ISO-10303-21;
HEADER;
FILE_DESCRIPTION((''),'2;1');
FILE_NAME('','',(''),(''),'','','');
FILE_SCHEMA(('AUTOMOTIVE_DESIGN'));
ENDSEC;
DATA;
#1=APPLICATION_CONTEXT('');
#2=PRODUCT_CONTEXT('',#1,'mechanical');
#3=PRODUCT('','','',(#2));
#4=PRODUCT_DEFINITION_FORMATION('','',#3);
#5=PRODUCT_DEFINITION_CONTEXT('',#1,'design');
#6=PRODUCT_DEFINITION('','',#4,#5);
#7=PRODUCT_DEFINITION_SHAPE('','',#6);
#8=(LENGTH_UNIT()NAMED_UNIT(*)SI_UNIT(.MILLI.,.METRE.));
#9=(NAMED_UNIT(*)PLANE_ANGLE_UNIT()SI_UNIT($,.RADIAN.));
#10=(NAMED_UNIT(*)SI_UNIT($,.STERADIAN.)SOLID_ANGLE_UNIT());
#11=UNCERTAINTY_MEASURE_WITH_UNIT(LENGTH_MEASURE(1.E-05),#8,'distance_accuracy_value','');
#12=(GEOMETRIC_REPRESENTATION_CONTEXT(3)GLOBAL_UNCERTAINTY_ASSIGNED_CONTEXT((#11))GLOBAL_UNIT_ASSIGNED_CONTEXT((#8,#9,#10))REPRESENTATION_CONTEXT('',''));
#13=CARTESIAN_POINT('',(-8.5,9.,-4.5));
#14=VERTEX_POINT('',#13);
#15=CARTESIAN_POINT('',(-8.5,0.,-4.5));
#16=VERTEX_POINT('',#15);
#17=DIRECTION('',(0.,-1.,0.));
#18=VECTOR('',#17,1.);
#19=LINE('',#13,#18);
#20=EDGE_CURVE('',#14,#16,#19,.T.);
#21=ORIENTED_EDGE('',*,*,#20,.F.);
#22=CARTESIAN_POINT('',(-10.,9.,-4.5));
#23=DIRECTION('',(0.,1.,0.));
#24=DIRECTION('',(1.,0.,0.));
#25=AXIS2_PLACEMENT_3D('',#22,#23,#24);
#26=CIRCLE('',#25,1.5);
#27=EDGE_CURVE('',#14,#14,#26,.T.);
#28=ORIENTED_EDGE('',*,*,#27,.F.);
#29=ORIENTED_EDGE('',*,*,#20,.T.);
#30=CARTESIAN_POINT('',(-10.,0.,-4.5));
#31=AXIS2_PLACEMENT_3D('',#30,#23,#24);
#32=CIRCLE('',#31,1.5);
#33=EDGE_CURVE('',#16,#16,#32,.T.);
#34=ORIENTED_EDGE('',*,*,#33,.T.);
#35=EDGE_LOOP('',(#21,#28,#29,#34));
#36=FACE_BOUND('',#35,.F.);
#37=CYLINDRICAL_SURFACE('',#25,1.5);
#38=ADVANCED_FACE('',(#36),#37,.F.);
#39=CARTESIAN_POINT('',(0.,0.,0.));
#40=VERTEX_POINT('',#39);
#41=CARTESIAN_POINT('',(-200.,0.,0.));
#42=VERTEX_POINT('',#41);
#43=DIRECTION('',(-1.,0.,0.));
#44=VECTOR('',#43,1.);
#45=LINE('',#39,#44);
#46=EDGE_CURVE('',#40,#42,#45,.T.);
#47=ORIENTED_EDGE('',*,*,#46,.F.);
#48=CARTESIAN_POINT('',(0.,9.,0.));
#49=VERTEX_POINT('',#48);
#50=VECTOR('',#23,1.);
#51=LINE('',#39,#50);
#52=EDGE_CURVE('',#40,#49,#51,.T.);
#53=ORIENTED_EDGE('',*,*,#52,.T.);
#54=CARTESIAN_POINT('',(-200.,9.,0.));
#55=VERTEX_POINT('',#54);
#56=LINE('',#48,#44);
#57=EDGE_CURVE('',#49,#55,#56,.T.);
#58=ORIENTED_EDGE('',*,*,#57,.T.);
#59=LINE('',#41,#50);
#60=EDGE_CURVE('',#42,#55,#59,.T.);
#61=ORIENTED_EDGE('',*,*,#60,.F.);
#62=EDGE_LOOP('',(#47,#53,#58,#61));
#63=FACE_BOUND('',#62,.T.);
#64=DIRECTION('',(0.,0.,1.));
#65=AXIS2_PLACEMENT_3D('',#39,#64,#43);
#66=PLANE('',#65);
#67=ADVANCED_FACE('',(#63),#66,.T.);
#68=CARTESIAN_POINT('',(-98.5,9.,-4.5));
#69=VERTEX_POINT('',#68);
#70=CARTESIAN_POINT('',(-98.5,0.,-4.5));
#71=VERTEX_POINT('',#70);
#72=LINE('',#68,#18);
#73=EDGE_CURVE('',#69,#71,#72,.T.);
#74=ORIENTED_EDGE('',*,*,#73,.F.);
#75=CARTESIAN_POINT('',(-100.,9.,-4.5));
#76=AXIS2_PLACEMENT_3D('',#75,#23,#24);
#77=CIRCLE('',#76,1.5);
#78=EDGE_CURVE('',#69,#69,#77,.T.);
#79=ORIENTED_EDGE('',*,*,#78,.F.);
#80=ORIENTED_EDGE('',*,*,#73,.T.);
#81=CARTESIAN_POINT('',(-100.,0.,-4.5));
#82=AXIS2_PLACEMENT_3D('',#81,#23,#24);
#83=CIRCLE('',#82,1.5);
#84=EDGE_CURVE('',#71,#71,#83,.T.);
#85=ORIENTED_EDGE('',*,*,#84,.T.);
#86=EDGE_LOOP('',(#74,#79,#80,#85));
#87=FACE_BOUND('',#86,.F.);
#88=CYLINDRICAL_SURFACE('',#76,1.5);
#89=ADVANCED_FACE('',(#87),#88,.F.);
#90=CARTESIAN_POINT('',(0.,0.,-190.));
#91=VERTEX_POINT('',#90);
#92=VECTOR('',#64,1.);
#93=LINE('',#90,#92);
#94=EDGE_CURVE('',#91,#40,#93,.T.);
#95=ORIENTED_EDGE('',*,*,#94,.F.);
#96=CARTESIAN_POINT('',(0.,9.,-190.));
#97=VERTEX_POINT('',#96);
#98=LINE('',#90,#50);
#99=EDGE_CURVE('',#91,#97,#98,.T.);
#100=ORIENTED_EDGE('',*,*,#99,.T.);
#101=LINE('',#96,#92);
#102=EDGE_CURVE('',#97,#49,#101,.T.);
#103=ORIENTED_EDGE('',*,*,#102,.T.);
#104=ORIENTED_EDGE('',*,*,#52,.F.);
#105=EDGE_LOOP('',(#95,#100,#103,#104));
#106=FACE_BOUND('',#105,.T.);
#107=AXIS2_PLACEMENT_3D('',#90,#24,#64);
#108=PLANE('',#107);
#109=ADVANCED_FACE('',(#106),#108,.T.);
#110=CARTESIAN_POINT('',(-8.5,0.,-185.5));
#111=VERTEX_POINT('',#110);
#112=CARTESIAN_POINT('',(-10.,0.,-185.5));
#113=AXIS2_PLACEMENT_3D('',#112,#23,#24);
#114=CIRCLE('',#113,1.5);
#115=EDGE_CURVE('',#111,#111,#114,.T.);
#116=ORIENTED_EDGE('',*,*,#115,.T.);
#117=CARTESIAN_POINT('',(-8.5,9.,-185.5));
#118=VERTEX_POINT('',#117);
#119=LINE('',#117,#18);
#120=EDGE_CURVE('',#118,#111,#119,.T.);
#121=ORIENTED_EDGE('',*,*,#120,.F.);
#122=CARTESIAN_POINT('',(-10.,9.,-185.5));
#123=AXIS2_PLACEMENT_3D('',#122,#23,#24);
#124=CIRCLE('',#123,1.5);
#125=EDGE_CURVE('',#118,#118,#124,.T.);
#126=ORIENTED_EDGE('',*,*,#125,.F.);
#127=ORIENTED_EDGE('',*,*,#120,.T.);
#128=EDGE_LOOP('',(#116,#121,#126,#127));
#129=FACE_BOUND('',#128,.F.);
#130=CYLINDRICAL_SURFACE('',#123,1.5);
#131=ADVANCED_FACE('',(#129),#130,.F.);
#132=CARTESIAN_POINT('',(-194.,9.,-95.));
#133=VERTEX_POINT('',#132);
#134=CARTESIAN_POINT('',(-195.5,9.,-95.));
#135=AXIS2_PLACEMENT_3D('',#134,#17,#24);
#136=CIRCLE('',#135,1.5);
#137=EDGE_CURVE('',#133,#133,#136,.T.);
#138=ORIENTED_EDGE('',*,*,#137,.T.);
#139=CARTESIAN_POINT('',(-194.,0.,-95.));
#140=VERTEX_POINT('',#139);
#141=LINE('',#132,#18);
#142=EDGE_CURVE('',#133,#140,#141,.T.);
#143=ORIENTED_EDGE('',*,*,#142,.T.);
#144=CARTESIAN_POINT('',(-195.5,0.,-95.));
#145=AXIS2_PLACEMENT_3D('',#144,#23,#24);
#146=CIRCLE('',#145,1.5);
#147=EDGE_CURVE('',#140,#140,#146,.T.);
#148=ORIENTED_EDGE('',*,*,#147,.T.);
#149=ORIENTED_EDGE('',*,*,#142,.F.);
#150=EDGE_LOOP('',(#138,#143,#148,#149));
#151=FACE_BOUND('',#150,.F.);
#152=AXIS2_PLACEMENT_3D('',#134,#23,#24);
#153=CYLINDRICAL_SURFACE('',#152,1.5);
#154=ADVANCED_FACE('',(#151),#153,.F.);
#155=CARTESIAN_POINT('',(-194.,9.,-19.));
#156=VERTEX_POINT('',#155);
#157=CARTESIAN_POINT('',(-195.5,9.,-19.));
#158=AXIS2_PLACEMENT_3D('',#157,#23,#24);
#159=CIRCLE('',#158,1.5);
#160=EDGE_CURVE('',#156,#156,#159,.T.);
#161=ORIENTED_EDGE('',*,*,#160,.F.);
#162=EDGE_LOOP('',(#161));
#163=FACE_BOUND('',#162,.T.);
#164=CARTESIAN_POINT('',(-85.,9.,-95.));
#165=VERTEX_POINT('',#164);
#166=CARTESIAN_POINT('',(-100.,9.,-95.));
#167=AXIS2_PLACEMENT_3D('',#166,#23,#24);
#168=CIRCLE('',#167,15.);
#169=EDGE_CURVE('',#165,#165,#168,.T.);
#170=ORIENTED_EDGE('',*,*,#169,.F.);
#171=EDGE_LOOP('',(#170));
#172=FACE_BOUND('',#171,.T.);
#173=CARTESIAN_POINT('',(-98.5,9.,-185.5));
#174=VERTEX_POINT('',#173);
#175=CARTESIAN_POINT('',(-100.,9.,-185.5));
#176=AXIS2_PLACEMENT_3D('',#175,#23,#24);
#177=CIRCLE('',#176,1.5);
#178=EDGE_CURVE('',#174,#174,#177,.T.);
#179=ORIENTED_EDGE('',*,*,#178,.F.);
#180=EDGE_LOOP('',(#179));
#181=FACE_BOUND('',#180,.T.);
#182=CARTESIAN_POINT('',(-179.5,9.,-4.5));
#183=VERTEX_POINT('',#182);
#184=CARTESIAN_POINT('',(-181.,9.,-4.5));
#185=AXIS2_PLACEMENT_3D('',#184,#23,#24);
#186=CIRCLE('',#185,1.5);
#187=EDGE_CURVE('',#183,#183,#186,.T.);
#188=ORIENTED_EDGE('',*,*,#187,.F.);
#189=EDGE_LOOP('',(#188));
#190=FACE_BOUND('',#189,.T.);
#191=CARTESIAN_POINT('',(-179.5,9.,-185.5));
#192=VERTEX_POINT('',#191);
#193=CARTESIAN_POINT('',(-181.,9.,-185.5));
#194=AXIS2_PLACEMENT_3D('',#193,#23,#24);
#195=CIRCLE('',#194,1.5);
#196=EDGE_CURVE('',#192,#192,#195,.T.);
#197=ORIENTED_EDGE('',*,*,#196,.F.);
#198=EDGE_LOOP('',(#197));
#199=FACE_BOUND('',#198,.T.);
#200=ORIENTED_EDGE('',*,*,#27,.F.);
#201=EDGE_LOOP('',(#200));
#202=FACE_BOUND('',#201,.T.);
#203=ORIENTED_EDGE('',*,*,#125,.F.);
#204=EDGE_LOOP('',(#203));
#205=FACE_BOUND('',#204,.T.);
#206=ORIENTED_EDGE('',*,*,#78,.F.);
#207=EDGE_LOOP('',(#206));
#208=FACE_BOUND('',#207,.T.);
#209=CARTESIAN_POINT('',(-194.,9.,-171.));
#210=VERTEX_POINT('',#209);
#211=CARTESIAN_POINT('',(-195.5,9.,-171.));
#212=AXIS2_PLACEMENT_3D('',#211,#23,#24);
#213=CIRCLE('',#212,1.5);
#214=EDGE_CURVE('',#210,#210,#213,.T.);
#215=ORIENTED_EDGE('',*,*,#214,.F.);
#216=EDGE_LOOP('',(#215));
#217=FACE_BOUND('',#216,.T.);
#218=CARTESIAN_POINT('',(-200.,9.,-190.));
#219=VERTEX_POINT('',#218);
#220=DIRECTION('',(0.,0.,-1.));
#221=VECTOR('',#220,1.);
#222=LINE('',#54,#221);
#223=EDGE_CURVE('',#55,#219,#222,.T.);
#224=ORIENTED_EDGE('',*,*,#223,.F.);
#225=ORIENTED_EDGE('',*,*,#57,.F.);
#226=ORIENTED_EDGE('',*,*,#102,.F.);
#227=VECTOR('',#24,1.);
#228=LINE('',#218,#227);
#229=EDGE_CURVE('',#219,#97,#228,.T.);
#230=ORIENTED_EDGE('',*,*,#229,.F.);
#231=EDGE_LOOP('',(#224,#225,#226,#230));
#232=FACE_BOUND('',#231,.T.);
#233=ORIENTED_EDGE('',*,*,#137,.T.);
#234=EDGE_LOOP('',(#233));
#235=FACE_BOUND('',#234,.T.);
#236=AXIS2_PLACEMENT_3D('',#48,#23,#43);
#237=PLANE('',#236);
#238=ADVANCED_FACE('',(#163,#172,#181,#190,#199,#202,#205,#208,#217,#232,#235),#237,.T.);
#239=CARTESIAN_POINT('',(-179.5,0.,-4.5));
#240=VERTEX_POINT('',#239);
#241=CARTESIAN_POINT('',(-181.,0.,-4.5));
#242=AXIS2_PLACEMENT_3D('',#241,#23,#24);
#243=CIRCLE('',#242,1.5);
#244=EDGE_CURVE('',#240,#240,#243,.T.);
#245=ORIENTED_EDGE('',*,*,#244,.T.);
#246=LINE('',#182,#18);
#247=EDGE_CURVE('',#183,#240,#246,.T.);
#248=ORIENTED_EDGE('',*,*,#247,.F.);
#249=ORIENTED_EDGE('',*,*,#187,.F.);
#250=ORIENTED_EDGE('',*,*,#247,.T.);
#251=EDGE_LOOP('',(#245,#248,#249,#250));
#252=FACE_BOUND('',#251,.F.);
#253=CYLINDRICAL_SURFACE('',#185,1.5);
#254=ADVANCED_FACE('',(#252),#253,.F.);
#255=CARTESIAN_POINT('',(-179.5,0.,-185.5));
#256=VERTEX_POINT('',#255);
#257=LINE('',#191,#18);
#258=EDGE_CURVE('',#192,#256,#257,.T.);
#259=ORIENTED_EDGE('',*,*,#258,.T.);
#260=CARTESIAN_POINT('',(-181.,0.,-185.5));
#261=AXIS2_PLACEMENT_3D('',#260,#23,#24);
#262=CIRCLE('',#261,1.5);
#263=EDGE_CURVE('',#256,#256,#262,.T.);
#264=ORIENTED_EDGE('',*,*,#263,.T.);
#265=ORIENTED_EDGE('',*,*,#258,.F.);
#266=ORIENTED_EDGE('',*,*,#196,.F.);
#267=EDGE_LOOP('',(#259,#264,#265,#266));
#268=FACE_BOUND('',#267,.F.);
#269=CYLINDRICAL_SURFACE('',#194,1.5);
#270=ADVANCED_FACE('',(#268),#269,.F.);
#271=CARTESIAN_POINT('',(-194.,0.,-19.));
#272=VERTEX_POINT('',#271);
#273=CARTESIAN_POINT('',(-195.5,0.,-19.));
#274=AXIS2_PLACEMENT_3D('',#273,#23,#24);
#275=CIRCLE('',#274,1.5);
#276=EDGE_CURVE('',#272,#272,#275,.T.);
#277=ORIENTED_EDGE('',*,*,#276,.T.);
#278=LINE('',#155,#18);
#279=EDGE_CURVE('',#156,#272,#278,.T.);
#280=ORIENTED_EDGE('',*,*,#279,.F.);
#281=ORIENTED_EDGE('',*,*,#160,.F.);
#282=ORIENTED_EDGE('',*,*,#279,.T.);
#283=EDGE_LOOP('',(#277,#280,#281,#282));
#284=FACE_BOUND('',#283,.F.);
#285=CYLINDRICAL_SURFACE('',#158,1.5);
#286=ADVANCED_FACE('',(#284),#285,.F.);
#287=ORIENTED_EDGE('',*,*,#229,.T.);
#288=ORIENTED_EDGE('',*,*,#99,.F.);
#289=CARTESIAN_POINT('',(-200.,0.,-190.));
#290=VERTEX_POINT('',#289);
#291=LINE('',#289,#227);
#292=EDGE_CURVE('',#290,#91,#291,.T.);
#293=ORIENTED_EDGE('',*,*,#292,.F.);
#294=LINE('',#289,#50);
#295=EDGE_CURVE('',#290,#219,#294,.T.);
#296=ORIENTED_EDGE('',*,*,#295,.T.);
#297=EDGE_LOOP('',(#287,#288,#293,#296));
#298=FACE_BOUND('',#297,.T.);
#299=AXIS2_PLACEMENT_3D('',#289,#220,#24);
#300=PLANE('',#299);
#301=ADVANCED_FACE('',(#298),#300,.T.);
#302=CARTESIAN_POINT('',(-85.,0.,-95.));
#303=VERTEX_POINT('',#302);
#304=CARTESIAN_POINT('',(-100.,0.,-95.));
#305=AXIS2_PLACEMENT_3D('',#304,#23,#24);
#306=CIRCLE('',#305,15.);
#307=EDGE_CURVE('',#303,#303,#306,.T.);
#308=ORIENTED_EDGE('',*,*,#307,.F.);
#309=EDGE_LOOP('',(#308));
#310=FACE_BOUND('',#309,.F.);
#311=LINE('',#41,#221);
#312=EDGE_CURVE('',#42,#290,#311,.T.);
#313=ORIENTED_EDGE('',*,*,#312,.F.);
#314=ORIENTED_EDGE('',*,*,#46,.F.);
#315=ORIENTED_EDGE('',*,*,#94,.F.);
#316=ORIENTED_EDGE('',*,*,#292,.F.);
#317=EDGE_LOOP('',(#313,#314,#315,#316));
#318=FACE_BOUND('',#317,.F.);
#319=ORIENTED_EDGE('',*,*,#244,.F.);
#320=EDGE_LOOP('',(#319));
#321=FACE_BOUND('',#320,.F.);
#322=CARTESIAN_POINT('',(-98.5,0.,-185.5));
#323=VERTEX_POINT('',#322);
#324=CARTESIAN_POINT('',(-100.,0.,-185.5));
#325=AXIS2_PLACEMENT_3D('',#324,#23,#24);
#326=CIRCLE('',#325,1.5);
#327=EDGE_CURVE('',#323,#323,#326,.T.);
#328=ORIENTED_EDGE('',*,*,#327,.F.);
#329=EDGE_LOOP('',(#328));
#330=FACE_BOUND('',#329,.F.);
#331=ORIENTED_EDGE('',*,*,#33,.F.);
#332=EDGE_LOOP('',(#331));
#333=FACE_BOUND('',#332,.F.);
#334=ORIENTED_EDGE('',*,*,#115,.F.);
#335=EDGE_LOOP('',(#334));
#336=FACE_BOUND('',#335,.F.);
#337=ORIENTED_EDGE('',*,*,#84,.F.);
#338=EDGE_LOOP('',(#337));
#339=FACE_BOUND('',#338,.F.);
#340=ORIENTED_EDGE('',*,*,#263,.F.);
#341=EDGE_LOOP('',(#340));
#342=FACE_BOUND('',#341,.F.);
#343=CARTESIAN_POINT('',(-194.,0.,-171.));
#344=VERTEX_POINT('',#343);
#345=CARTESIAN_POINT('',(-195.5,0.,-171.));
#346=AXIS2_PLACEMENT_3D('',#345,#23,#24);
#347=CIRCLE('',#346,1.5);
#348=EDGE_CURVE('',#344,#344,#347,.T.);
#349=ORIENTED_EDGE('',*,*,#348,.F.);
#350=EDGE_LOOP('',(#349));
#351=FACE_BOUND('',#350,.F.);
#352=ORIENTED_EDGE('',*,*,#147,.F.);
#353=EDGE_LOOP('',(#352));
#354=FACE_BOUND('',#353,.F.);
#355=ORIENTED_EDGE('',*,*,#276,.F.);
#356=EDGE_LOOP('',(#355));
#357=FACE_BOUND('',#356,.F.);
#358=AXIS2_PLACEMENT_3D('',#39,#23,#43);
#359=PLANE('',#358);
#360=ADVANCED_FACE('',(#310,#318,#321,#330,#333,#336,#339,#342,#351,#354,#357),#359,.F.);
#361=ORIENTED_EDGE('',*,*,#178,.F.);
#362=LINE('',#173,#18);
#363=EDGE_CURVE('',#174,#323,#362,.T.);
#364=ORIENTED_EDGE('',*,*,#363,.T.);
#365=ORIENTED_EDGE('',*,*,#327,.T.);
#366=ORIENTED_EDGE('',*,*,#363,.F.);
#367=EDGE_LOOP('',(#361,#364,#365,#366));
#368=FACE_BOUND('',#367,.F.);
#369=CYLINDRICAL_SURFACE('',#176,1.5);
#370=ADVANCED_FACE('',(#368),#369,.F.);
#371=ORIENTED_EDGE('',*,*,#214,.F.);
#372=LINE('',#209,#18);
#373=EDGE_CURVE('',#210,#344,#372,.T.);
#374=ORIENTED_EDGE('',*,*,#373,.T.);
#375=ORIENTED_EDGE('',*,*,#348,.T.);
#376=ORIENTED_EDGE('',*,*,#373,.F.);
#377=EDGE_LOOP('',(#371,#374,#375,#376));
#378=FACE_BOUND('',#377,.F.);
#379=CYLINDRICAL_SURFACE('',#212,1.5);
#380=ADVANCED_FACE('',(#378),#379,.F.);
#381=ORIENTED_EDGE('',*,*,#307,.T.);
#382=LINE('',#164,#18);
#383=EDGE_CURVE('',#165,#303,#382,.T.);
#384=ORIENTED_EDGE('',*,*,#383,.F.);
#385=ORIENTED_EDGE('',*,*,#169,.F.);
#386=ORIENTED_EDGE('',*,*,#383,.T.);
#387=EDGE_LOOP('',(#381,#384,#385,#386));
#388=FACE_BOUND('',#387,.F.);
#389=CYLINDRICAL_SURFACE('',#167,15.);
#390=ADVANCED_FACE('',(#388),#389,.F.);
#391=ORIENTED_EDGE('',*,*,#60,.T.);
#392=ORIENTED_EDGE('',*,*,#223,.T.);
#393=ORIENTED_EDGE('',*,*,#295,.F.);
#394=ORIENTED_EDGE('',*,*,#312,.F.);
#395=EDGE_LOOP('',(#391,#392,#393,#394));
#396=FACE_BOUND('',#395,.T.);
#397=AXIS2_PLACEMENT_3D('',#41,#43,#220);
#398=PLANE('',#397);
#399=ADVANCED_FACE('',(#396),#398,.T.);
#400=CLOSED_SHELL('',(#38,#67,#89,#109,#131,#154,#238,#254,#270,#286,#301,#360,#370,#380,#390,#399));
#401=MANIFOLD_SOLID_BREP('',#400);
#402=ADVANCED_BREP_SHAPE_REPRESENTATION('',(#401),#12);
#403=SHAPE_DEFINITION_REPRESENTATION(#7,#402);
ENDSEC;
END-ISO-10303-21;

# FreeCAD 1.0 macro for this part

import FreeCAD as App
import Part
import Sketcher
Q = App.Units.Quantity


def add_polygon(sketch, points):
    """Adds a closed chain of lines whose ends are joined by coincident constraints."""
    first, n = sketch.GeometryCount, len(points)
    for a, b in zip(points, points[1:] + points[:1]):
        sketch.addGeometry(Part.LineSegment(App.Vector(*a, 0), App.Vector(*b, 0)), False)
    for i in range(n):
        sketch.addConstraint(Sketcher.Constraint("Coincident", first + i, 2, first + (i + 1) % n, 1))

doc = App.newDocument("Part")
body = doc.addObject("PartDesign::Body", "Body")

# Sketch on XZ plane
sketch1 = body.newObject("Sketcher::SketchObject", "Sketch")
sketch1.AttachmentSupport = (doc.getObject("XZ_Plane"), [""])
sketch1.MapMode = "FlatFace"
add_polygon(sketch1, [(-200, 0), (0, 0), (0, -190), (-200, -190)])  # lines 0-3
sketch1.addConstraint([
    Sketcher.Constraint("Horizontal", 0),
    Sketcher.Constraint("Vertical", 1),
    Sketcher.Constraint("Horizontal", 2),
    Sketcher.Constraint("Vertical", 3),
    Sketcher.Constraint("Coincident", 0, 2, -1, 1),
    Sketcher.Constraint("DistanceX", 0, 1, 0, 2, Q("200 mm")),
    Sketcher.Constraint("DistanceY", 1, 2, 1, 1, Q("190 mm")),
])
pad1 = body.newObject("PartDesign::Pad", "Pad")
pad1.Profile = sketch1
pad1.Length = 9
pad1.Reversed = True

# Sketch on XZ plane
sketch2 = body.newObject("Sketcher::SketchObject", "Sketch001")
sketch2.AttachmentSupport = (doc.getObject("XZ_Plane"), [""])
sketch2.MapMode = "FlatFace"
sketch2.AttachmentOffset = App.Placement(App.Vector(0, 0, -9), App.Rotation())
sketch2.addGeometry(Part.Circle(App.Vector(-100, -95, 0), App.Vector(0, 0, 1), 15), False)
sketch2.addConstraint([
    Sketcher.Constraint("Diameter", 0, Q("30 mm")),
    Sketcher.Constraint("DistanceX", 0, 3, -1, 1, Q("100 mm")),
    Sketcher.Constraint("DistanceY", 0, 3, -1, 1, Q("95 mm")),
])
pocket1 = body.newObject("PartDesign::Pocket", "Pocket")
pocket1.Profile = sketch2
pocket1.Length = 9
pocket1.Reversed = True

# Sketch on XZ plane
sketch3 = body.newObject("Sketcher::SketchObject", "Sketch002")
sketch3.AttachmentSupport = (doc.getObject("XZ_Plane"), [""])
sketch3.MapMode = "FlatFace"
sketch3.AttachmentOffset = App.Placement(App.Vector(0, 0, -9), App.Rotation())
sketch3.addGeometry([
    Part.Circle(App.Vector(-10, -4.5, 0), App.Vector(0, 0, 1), 1.5),  # 0
    Part.Circle(App.Vector(-100, -4.5, 0), App.Vector(0, 0, 1), 1.5),  # 1
    Part.Circle(App.Vector(-181, -4.5, 0), App.Vector(0, 0, 1), 1.5),  # 2
    Part.Circle(App.Vector(-10, -185.5, 0), App.Vector(0, 0, 1), 1.5),  # 3
    Part.Circle(App.Vector(-100, -185.5, 0), App.Vector(0, 0, 1), 1.5),  # 4
    Part.Circle(App.Vector(-181, -185.5, 0), App.Vector(0, 0, 1), 1.5),  # 5
], False)
sketch3.addConstraint([
    Sketcher.Constraint("Equal", 0, 1),
    Sketcher.Constraint("Equal", 1, 2),
    Sketcher.Constraint("Equal", 2, 3),
    Sketcher.Constraint("Equal", 3, 4),
    Sketcher.Constraint("Equal", 4, 5),
    Sketcher.Constraint("Horizontal", 0, 3, 1, 3),
    Sketcher.Constraint("Horizontal", 1, 3, 2, 3),
    Sketcher.Constraint("Horizontal", 3, 3, 4, 3),
    Sketcher.Constraint("Horizontal", 4, 3, 5, 3),
    Sketcher.Constraint("Vertical", 0, 3, 3, 3),
    Sketcher.Constraint("Vertical", 1, 3, 4, 3),
    Sketcher.Constraint("Vertical", 2, 3, 5, 3),
    Sketcher.Constraint("Diameter", 0, Q("3 mm")),
    Sketcher.Constraint("DistanceX", 0, 3, -1, 1, Q("10 mm")),
    Sketcher.Constraint("DistanceX", 1, 3, -1, 1, Q("100 mm")),
    Sketcher.Constraint("DistanceX", 2, 3, -1, 1, Q("181 mm")),
    Sketcher.Constraint("DistanceY", 3, 3, 0, 3, Q("181 mm")),
    Sketcher.Constraint("DistanceY", 0, 3, -1, 1, Q("4.5 mm")),
])
pocket2 = body.newObject("PartDesign::Pocket", "Pocket001")
pocket2.Profile = sketch3
pocket2.Length = 10
pocket2.Reversed = True

# Sketch on XZ plane
sketch4 = body.newObject("Sketcher::SketchObject", "Sketch003")
sketch4.AttachmentSupport = (doc.getObject("XZ_Plane"), [""])
sketch4.MapMode = "FlatFace"
sketch4.AttachmentOffset = App.Placement(App.Vector(0, 0, -9), App.Rotation())
sketch4.addGeometry([
    Part.Circle(App.Vector(-195.5, -95, 0), App.Vector(0, 0, 1), 1.5),
    Part.Circle(App.Vector(-195.5, -171, 0), App.Vector(0, 0, 1), 1.5),
    Part.Circle(App.Vector(-195.5, -19, 0), App.Vector(0, 0, 1), 1.5),
], False)
sketch4.addConstraint([
    Sketcher.Constraint("Equal", 0, 1),
    Sketcher.Constraint("Equal", 1, 2),
    Sketcher.Constraint("Vertical", 0, 3, 1, 3),
    Sketcher.Constraint("Vertical", 1, 3, 2, 3),
    Sketcher.Constraint("Diameter", 0, Q("3 mm")),
    Sketcher.Constraint("DistanceY", 0, 3, -1, 1, Q("95 mm")),
    Sketcher.Constraint("DistanceY", 1, 3, -1, 1, Q("171 mm")),
    Sketcher.Constraint("DistanceY", 2, 3, -1, 1, Q("19 mm")),
    Sketcher.Constraint("DistanceX", 0, 3, -1, 1, Q("195.5 mm")),
])
pocket3 = body.newObject("PartDesign::Pocket", "Pocket002")
pocket3.Profile = sketch4
pocket3.Length = 10
pocket3.Reversed = True

doc.recompute()
